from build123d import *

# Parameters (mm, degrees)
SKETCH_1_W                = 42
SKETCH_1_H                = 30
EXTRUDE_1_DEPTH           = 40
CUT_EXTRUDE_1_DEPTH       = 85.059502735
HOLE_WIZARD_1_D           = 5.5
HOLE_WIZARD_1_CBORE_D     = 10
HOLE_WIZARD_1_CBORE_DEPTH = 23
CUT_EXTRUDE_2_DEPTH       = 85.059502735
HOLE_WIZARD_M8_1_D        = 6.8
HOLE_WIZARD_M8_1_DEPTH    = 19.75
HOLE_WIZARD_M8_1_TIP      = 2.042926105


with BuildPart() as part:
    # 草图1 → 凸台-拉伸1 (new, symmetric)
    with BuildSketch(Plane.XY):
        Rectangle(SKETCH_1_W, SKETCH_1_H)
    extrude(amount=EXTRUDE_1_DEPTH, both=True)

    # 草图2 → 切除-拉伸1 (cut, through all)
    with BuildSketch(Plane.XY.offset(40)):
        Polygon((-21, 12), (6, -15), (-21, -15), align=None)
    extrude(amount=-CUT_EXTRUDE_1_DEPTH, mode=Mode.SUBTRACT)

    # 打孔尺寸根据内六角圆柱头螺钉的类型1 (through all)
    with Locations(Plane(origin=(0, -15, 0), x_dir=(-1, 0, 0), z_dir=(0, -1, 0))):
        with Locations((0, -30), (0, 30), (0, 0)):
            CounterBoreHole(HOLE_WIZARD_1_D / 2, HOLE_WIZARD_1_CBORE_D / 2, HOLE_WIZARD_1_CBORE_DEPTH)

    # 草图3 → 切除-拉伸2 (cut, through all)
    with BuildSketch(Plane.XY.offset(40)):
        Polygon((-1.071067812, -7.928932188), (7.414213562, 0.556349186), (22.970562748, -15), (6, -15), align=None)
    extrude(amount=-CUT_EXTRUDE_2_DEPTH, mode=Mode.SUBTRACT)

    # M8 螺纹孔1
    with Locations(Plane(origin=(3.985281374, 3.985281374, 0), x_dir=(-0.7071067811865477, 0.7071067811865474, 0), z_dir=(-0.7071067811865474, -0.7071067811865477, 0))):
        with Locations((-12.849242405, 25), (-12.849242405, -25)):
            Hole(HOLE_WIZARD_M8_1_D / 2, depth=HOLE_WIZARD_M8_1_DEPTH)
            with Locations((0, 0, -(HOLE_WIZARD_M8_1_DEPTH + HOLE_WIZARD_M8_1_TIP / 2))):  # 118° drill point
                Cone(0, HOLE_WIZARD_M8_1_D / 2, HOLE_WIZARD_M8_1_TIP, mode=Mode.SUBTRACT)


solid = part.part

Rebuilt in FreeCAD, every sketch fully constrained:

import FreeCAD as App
import Part
import Sketcher

V = App.Vector
Q = App.Units.Quantity

doc = App.newDocument("Part")
body = doc.addObject("PartDesign::Body", "Body")

sketch1 = body.newObject("Sketcher::SketchObject", "Sketch")
sketch1.AttachmentSupport = (doc.getObject("XY_Plane"), [""])
sketch1.MapMode = "FlatFace"
sketch1.addGeometry([
    Part.LineSegment(V(-21, 15, 0), V(-21, -15, 0)),
    Part.LineSegment(V(-21, -15, 0), V(21, -15, 0)),
    Part.LineSegment(V(21, -15, 0), V(21, 15, 0)),
    Part.LineSegment(V(21, 15, 0), V(-21, 15, 0)),
], False)
sketch1.addConstraint([
    Sketcher.Constraint("Coincident", 0, 2, 1, 1),
    Sketcher.Constraint("Coincident", 1, 2, 2, 1),
    Sketcher.Constraint("Coincident", 2, 2, 3, 1),
    Sketcher.Constraint("Coincident", 3, 2, 0, 1),
    Sketcher.Constraint("Vertical", 0),
    Sketcher.Constraint("Horizontal", 1),
    Sketcher.Constraint("Vertical", 2),
    Sketcher.Constraint("Horizontal", 3),
    Sketcher.Constraint("Symmetric", 0, 2, 2, 2, -1, 1),
    Sketcher.Constraint("DistanceX", 1, 1, 1, 2, Q("42 mm")),
    Sketcher.Constraint("DistanceY", 0, 2, 0, 1, Q("30 mm")),
])
pad1 = body.newObject("PartDesign::Pad", "Pad")
pad1.Profile = sketch1
pad1.Length = 80
pad1.Midplane = True

sketch2 = body.newObject("Sketcher::SketchObject", "Sketch001")
sketch2.AttachmentSupport = (doc.getObject("XY_Plane"), [""])
sketch2.MapMode = "FlatFace"
sketch2.AttachmentOffset = App.Placement(V(0, 0, 40), App.Rotation())
sketch2.addGeometry([
    Part.LineSegment(V(6, -15, 0), V(-21, 12, 0)),
    Part.LineSegment(V(-21, 12, 0), V(-21, -15, 0)),
    Part.LineSegment(V(-21, -15, 0), V(6, -15, 0)),
], False)
sketch2.addConstraint([
    Sketcher.Constraint("Coincident", 0, 2, 1, 1),
    Sketcher.Constraint("Coincident", 1, 2, 2, 1),
    Sketcher.Constraint("Coincident", 2, 2, 0, 1),
    Sketcher.Constraint("Vertical", 1),
    Sketcher.Constraint("Horizontal", 2),
    Sketcher.Constraint("Equal", 2, 1),
    Sketcher.Constraint("DistanceX", 2, 1, 2, 2, Q("27 mm")),
    Sketcher.Constraint("DistanceX", 0, 2, -1, 1, Q("21 mm")),
    Sketcher.Constraint("DistanceY", -1, 1, 0, 2, Q("12 mm")),
])
pocket1 = body.newObject("PartDesign::Pocket", "Pocket")
pocket1.Profile = sketch2
pocket1.Type = "ThroughAll"

sketch3 = body.newObject("Sketcher::SketchObject", "Sketch002")
sketch3.AttachmentSupport = (doc.getObject("XZ_Plane"), [""])
sketch3.MapMode = "FlatFace"
sketch3.AttachmentOffset = App.Placement(V(0, 0, 15), App.Rotation())
sketch3.addGeometry([
    Part.Circle(V(0, 30, 0), V(0, 0, 1), 2.8),
    Part.Circle(V(0, -30, 0), V(0, 0, 1), 2.8),
    Part.Circle(V(0, 0, 0), V(0, 0, 1), 2.8),
], False)
sketch3.addConstraint([
    Sketcher.Constraint("Coincident", 2, 3, -1, 1),
    Sketcher.Constraint("Equal", 0, 1),
    Sketcher.Constraint("Equal", 1, 2),
    Sketcher.Constraint("Symmetric", 0, 3, 1, 3, -1, 1),
    Sketcher.Constraint("PointOnObject", 0, 3, -2),
    Sketcher.Constraint("Diameter", 0, Q("5.5 mm")),
    Sketcher.Constraint("DistanceY", -1, 1, 0, 3, Q("30 mm")),
])
doc.recompute()
hole = body.newObject("PartDesign::Hole", "Hole")
hole.Profile = sketch3
hole.ThreadType = "None"
hole.Diameter = 5.5
hole.DepthType = "ThroughAll"
hole.HoleCutType = "Counterbore"
hole.HoleCutDiameter = 10
hole.HoleCutDepth = 23

sketch4 = body.newObject("Sketcher::SketchObject", "Sketch003")
sketch4.AttachmentSupport = (doc.getObject("XY_Plane"), [""])
sketch4.MapMode = "FlatFace"
sketch4.AttachmentOffset = App.Placement(V(0, 0, 40), App.Rotation())
sketch4.addGeometry([
    Part.LineSegment(V(7, 1, 0), V(-1, -8, 0)),
    Part.LineSegment(V(-1, -8, 0), V(6, -15, 0)),
    Part.LineSegment(V(6, -15, 0), V(23, -15, 0)),
    Part.LineSegment(V(23, -15, 0), V(7, 1, 0)),
], False)
sketch4.addConstraint([
    Sketcher.Constraint("Coincident", 0, 2, 1, 1),
    Sketcher.Constraint("Coincident", 1, 2, 2, 1),
    Sketcher.Constraint("Coincident", 2, 2, 3, 1),
    Sketcher.Constraint("Coincident", 3, 2, 0, 1),
    Sketcher.Constraint("Horizontal", 2),
    Sketcher.Constraint("Perpendicular", 0, 1),
    Sketcher.Constraint("Parallel", 1, 3),
    Sketcher.Constraint("Angle", 0, Q("-135 deg")),
    Sketcher.Constraint("Distance", 0, Q("12 mm")),
    Sketcher.Constraint("Distance", 1, Q("10 mm")),
    Sketcher.Constraint("DistanceX", -1, 1, 1, 2, Q("6 mm")),
    Sketcher.Constraint("DistanceY", 1, 2, -1, 1, Q("15 mm")),
])
pocket2 = body.newObject("PartDesign::Pocket", "Pocket001")
pocket2.Profile = sketch4
pocket2.Type = "ThroughAll"

sketch5 = body.newObject("Sketcher::SketchObject", "Sketch004")
sketch5.Placement = App.Placement(V(3.985281, 3.985281, 0), App.Rotation(V(-0.707106781, 0.707106781, 0), V(0, 0, -0.999999999), V(-0.707106781, -0.707106781, 0), "ZXY"))
sketch5.addGeometry([
    Part.Circle(V(-12.8, 25, 0), V(0, 0, 1), 3.4),
    Part.Circle(V(-12.8, -25, 0), V(0, 0, 1), 3.4),
], False)
sketch5.addConstraint([
    Sketcher.Constraint("Equal", 0, 1),
    Sketcher.Constraint("Symmetric", 0, 3, 1, 3, -1),
    Sketcher.Constraint("Diameter", 0, Q("6.8 mm")),
    Sketcher.Constraint("DistanceY", -1, 1, 0, 3, Q("25 mm")),
    Sketcher.Constraint("DistanceX", 0, 3, -1, 1, Q("12.849242 mm")),
])
doc.recompute()
hole2 = body.newObject("PartDesign::Hole", "Hole001")
hole2.Profile = sketch5
hole2.ThreadType = "None"
hole2.Diameter = 6.8
hole2.DepthType = "Dimension"
hole2.Depth = 19.75
hole2.DrillPoint = "Angled"
hole2.DrillPointAngle = 118

doc.recompute()
